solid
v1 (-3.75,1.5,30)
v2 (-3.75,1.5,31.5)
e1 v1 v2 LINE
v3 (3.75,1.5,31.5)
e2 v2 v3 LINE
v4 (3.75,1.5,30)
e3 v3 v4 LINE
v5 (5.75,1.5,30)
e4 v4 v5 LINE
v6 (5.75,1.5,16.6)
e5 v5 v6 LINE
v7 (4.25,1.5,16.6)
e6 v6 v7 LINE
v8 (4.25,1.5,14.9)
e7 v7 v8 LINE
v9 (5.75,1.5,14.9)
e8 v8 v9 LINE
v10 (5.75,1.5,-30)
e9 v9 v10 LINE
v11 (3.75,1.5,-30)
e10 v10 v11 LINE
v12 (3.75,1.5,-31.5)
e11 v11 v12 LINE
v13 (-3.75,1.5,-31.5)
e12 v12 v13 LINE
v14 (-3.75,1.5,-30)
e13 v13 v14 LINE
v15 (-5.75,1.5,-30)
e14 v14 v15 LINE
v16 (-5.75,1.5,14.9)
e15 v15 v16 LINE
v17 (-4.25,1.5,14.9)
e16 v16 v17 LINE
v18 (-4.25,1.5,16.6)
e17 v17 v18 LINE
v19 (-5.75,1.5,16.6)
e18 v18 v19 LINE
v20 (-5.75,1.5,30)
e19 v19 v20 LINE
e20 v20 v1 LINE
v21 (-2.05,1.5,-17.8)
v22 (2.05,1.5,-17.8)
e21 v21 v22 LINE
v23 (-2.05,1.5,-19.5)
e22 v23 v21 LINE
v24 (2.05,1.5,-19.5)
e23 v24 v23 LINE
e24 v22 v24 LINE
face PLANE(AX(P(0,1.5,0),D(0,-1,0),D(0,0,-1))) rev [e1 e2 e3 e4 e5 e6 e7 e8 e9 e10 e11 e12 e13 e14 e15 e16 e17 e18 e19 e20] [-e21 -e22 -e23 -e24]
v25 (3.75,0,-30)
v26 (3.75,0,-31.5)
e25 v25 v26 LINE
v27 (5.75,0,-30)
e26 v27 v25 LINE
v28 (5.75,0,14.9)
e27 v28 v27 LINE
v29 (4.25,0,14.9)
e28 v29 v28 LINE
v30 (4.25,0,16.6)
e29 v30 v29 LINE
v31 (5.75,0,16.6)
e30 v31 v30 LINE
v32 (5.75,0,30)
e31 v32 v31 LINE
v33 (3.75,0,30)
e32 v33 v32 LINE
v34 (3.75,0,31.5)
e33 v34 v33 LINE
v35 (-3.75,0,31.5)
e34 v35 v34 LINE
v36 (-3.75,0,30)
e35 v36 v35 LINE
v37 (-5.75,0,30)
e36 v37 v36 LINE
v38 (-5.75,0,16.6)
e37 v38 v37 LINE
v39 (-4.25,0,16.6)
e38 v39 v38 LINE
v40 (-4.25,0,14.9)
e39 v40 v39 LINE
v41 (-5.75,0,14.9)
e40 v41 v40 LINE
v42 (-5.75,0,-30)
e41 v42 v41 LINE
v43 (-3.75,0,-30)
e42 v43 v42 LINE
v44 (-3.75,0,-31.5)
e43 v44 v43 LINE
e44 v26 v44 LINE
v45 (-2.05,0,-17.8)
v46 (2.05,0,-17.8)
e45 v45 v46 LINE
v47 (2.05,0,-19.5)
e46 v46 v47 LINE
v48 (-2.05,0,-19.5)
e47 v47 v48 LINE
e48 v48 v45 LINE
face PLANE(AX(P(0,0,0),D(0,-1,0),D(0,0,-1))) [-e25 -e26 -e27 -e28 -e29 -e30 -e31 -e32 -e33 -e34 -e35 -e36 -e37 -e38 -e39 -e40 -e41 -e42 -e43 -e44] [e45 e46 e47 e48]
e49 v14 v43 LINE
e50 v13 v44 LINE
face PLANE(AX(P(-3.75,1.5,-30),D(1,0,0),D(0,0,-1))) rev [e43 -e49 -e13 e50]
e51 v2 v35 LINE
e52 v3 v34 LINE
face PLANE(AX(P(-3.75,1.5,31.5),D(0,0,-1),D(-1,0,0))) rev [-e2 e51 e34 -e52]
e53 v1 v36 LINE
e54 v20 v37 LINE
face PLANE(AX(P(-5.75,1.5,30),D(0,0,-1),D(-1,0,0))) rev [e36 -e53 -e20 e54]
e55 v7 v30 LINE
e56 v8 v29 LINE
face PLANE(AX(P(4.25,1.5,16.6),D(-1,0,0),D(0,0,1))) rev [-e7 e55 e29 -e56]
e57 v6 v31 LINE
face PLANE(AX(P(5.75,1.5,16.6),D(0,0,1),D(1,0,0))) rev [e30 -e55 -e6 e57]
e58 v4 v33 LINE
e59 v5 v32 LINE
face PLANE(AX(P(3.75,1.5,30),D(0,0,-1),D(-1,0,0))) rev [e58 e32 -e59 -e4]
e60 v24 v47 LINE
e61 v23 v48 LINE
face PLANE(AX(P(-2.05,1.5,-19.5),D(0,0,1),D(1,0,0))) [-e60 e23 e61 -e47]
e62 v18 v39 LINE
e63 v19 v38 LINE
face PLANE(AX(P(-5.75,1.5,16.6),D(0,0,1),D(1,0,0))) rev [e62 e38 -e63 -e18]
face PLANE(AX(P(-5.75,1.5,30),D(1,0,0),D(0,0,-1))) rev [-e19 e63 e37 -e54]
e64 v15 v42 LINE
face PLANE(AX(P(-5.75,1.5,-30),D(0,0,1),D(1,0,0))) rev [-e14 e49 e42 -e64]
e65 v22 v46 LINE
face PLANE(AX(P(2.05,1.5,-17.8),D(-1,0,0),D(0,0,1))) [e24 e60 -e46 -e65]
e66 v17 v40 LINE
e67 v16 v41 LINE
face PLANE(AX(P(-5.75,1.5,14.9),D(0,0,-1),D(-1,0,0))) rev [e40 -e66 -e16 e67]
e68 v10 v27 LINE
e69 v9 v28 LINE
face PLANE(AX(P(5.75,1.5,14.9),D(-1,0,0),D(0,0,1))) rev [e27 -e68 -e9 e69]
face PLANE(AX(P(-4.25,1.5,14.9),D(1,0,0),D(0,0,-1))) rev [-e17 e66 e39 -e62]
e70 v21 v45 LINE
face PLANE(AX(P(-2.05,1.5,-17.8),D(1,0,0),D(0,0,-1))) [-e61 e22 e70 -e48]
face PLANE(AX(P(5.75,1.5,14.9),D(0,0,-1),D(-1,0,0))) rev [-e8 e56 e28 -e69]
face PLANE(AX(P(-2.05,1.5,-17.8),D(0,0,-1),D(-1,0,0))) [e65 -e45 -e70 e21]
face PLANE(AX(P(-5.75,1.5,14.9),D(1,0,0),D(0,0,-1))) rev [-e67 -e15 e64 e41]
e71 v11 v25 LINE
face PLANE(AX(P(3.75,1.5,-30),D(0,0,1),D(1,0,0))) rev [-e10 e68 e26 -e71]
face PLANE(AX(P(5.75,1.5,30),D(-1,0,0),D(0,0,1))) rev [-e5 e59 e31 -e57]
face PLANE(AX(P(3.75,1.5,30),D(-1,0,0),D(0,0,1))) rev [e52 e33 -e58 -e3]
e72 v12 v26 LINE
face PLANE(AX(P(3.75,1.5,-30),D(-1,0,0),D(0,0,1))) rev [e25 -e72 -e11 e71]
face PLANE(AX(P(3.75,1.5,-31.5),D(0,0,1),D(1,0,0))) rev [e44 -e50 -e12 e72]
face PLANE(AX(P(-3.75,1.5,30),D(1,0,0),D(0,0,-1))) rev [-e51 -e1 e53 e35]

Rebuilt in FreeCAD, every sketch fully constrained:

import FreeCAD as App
import Part
import Sketcher
from FreeCAD import Vector
Q = App.Units.Quantity

doc = App.newDocument("Part")
body = doc.addObject("PartDesign::Body", "Body")

# Sketch on XZ plane
sketch1 = body.newObject("Sketcher::SketchObject", "Sketch")
sketch1.AttachmentSupport = (doc.getObject("XZ_Plane"), [""])
sketch1.MapMode = "FlatFace"
sketch1.addGeometry([
    Part.LineSegment(Vector(5.8, -30, 0), Vector(3.8, -30, 0)),  # 0
    Part.LineSegment(Vector(3.8, -30, 0), Vector(3.8, -31.5, 0)),  # 1
    Part.LineSegment(Vector(3.8, -31.5, 0), Vector(-3.8, -31.5, 0)),  # 2
    Part.LineSegment(Vector(-3.8, -31.5, 0), Vector(-3.8, -30, 0)),  # 3
    Part.LineSegment(Vector(-3.8, -30, 0), Vector(-5.8, -30, 0)),  # 4
    Part.LineSegment(Vector(-5.8, -30, 0), Vector(-5.8, 14.9, 0)),  # 5
    Part.LineSegment(Vector(-5.8, 14.9, 0), Vector(-4.2, 14.9, 0)),  # 6
    Part.LineSegment(Vector(-4.2, 14.9, 0), Vector(-4.2, 16.6, 0)),  # 7
    Part.LineSegment(Vector(-4.2, 16.6, 0), Vector(-5.8, 16.6, 0)),  # 8
    Part.LineSegment(Vector(-5.8, 16.6, 0), Vector(-5.8, 30, 0)),  # 9
    Part.LineSegment(Vector(-5.8, 30, 0), Vector(-3.8, 30, 0)),  # 10
    Part.LineSegment(Vector(-3.8, 30, 0), Vector(-3.8, 31.5, 0)),  # 11
    Part.LineSegment(Vector(-3.8, 31.5, 0), Vector(3.8, 31.5, 0)),  # 12
    Part.LineSegment(Vector(3.8, 31.5, 0), Vector(3.8, 30, 0)),  # 13
    Part.LineSegment(Vector(3.8, 30, 0), Vector(5.8, 30, 0)),  # 14
    Part.LineSegment(Vector(5.8, 30, 0), Vector(5.8, 16.6, 0)),  # 15
    Part.LineSegment(Vector(5.8, 16.6, 0), Vector(4.2, 16.6, 0)),  # 16
    Part.LineSegment(Vector(4.2, 16.6, 0), Vector(4.2, 14.9, 0)),  # 17
    Part.LineSegment(Vector(4.2, 14.9, 0), Vector(5.8, 14.9, 0)),  # 18
    Part.LineSegment(Vector(5.8, 14.9, 0), Vector(5.8, -30, 0)),  # 19
    Part.LineSegment(Vector(-2, -17.8, 0), Vector(-2, -19.5, 0)),  # 20
    Part.LineSegment(Vector(-2, -19.5, 0), Vector(2, -19.5, 0)),  # 21
    Part.LineSegment(Vector(2, -19.5, 0), Vector(2, -17.8, 0)),  # 22
    Part.LineSegment(Vector(2, -17.8, 0), Vector(-2, -17.8, 0)),  # 23
], False)
sketch1.addConstraint([
    Sketcher.Constraint("Coincident", 0, 2, 1, 1),
    Sketcher.Constraint("Coincident", 1, 2, 2, 1),
    Sketcher.Constraint("Coincident", 2, 2, 3, 1),
    Sketcher.Constraint("Coincident", 3, 2, 4, 1),
    Sketcher.Constraint("Coincident", 4, 2, 5, 1),
    Sketcher.Constraint("Coincident", 5, 2, 6, 1),
    Sketcher.Constraint("Coincident", 6, 2, 7, 1),
    Sketcher.Constraint("Coincident", 7, 2, 8, 1),
    Sketcher.Constraint("Coincident", 8, 2, 9, 1),
    Sketcher.Constraint("Coincident", 9, 2, 10, 1),
    Sketcher.Constraint("Coincident", 10, 2, 11, 1),
    Sketcher.Constraint("Coincident", 11, 2, 12, 1),
    Sketcher.Constraint("Coincident", 12, 2, 13, 1),
    Sketcher.Constraint("Coincident", 13, 2, 14, 1),
    Sketcher.Constraint("Coincident", 14, 2, 15, 1),
    Sketcher.Constraint("Coincident", 15, 2, 16, 1),
    Sketcher.Constraint("Coincident", 16, 2, 17, 1),
    Sketcher.Constraint("Coincident", 17, 2, 18, 1),
    Sketcher.Constraint("Coincident", 18, 2, 19, 1),
    Sketcher.Constraint("Coincident", 19, 2, 0, 1),
    Sketcher.Constraint("Coincident", 20, 2, 21, 1),
    Sketcher.Constraint("Coincident", 21, 2, 22, 1),
    Sketcher.Constraint("Coincident", 22, 2, 23, 1),
    Sketcher.Constraint("Coincident", 23, 2, 20, 1),
    Sketcher.Constraint("Horizontal", 0),
    Sketcher.Constraint("Vertical", 1),
    Sketcher.Constraint("Horizontal", 2),
    Sketcher.Constraint("Vertical", 3),
    Sketcher.Constraint("Horizontal", 4),
    Sketcher.Constraint("Vertical", 5),
    Sketcher.Constraint("Horizontal", 6),
    Sketcher.Constraint("Vertical", 7),
    Sketcher.Constraint("Horizontal", 8),
    Sketcher.Constraint("Vertical", 9),
    Sketcher.Constraint("Horizontal", 10),
    Sketcher.Constraint("Vertical", 11),
    Sketcher.Constraint("Horizontal", 12),
    Sketcher.Constraint("Vertical", 13),
    Sketcher.Constraint("Horizontal", 14),
    Sketcher.Constraint("Vertical", 15),
    Sketcher.Constraint("Horizontal", 16),
    Sketcher.Constraint("Vertical", 17),
    Sketcher.Constraint("Horizontal", 18),
    Sketcher.Constraint("Vertical", 19),
    Sketcher.Constraint("Vertical", 20),
    Sketcher.Constraint("Horizontal", 21),
    Sketcher.Constraint("Vertical", 22),
    Sketcher.Constraint("Horizontal", 23),
    Sketcher.Constraint("Symmetric", 0, 2, 10, 2, -1, 1),
    Sketcher.Constraint("Symmetric", 2, 2, 12, 2, -1, 1),
    Sketcher.Constraint("Symmetric", 4, 2, 14, 2, -1, 1),
    Sketcher.Constraint("Symmetric", 0, 2, 3, 2, -2),
    Sketcher.Constraint("Symmetric", 8, 2, 15, 2, -2),
    Sketcher.Constraint("Symmetric", 6, 2, 17, 2, -2),
    Sketcher.Constraint("Vertical", 15, 2, 18, 2),
    Sketcher.Constraint("Equal", 18, 1),
    Sketcher.Constraint("Equal", 17, 20),
    Sketcher.Constraint("DistanceX", 0, 2, 0, 1, Q("2 mm")),
    Sketcher.Constraint("DistanceX", 2, 2, 2, 1, Q("7.5 mm")),
    Sketcher.Constraint("DistanceX", 6, 1, 6, 2, Q("1.5 mm")),
    Sketcher.Constraint("DistanceX", 21, 1, 21, 2, Q("4.1 mm")),
    Sketcher.Constraint("DistanceY", 5, 1, 5, 2, Q("44.9 mm")),
    Sketcher.Constraint("DistanceY", 7, 1, 7, 2, Q("1.7 mm")),
    Sketcher.Constraint("DistanceY", 9, 1, 9, 2, Q("13.4 mm")),
    Sketcher.Constraint("DistanceY", 2, 2, 20, 2, Q("12 mm")),
    Sketcher.Constraint("DistanceX", 3, 2, 20, 2, Q("1.7 mm")),
])
pad1 = body.newObject("PartDesign::Pad", "Pad")
pad1.Profile = sketch1
pad1.Length = 1.5
pad1.Reversed = True

doc.recompute()
